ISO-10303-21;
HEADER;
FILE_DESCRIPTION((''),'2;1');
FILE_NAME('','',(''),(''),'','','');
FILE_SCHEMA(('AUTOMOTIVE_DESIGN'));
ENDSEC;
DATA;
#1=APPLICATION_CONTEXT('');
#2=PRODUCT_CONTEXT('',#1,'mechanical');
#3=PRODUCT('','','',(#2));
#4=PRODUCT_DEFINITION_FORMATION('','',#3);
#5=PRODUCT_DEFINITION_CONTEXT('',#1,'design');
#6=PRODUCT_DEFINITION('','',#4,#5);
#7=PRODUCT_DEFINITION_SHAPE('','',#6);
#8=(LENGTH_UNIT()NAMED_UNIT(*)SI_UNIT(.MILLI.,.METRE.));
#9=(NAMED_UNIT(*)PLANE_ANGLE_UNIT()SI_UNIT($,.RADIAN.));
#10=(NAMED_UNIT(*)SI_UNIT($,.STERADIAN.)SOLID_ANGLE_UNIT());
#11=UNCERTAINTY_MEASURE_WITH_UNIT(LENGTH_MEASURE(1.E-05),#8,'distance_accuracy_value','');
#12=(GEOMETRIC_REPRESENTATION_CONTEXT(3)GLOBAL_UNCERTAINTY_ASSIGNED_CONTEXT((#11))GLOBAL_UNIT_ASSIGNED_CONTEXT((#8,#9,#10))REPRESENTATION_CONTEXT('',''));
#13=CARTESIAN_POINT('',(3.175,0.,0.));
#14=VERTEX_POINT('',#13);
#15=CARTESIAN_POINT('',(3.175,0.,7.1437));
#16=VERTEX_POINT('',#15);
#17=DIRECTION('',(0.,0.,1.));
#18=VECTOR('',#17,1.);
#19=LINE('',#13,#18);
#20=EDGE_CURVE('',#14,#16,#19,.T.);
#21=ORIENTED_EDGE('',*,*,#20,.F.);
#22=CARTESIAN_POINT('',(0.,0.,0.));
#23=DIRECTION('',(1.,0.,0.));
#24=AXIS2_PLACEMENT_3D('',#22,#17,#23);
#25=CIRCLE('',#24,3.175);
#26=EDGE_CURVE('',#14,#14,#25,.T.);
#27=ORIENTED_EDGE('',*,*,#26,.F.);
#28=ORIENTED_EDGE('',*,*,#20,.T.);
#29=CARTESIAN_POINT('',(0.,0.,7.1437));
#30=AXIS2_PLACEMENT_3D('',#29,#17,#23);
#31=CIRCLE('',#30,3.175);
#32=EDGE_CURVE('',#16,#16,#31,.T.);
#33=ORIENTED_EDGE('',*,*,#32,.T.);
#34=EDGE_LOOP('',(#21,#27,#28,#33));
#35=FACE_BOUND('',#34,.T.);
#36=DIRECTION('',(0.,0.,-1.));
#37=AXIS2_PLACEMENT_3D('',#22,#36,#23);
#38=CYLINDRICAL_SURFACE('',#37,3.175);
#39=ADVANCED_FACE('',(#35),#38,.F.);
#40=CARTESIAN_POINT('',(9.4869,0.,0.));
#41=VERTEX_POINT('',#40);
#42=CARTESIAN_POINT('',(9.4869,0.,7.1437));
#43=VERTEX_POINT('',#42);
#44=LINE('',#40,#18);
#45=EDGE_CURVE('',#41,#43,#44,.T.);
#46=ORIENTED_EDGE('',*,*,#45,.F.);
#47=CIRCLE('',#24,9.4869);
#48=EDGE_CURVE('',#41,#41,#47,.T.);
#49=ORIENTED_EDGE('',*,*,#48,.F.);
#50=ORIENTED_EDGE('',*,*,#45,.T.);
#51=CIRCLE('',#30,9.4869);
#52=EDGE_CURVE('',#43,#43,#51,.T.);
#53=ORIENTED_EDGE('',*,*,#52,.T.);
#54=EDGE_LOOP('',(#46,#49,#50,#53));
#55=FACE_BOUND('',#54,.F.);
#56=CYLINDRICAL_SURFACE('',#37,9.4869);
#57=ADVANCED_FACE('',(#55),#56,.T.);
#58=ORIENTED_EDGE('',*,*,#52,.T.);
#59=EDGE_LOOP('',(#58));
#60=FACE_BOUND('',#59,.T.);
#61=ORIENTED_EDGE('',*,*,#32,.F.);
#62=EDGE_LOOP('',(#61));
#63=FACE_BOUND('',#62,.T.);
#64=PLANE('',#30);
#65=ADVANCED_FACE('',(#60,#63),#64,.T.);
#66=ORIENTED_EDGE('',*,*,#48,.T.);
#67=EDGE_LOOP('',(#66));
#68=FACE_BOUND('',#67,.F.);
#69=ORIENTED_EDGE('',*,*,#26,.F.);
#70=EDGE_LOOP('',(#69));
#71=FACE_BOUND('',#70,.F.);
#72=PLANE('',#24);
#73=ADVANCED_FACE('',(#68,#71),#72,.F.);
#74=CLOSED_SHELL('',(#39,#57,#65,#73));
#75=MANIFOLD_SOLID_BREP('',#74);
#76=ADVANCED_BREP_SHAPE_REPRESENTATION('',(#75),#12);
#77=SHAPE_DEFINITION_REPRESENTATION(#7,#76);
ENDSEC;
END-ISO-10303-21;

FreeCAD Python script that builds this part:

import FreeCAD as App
import Part
import Sketcher
Q = App.Units.Quantity

doc = App.newDocument("Part")
body = doc.addObject("PartDesign::Body", "Body")

# Sketch on XY plane
sketch1 = body.newObject("Sketcher::SketchObject", "Sketch")
sketch1.AttachmentSupport = (doc.getObject("XY_Plane"), [""])
sketch1.MapMode = "FlatFace"
sketch1.addGeometry([
    Part.Circle(App.Vector(0, 0, 0), App.Vector(0, 0, 1), 9.5),
    Part.Circle(App.Vector(0, 0, 0), App.Vector(0, 0, 1), 3.2),
], False)
sketch1.addConstraint([
    Sketcher.Constraint("Coincident", 0, 3, -1, 1),
    Sketcher.Constraint("Coincident", 1, 3, -1, 1),
    Sketcher.Constraint("Diameter", 1, Q("0.25 in")),
    Sketcher.Constraint("Diameter", 0, Q("0.747 in")),
])
pad1 = body.newObject("PartDesign::Pad", "Pad")
pad1.Profile = sketch1
pad1.Length = Q("0.281248 in")

doc.recompute()
